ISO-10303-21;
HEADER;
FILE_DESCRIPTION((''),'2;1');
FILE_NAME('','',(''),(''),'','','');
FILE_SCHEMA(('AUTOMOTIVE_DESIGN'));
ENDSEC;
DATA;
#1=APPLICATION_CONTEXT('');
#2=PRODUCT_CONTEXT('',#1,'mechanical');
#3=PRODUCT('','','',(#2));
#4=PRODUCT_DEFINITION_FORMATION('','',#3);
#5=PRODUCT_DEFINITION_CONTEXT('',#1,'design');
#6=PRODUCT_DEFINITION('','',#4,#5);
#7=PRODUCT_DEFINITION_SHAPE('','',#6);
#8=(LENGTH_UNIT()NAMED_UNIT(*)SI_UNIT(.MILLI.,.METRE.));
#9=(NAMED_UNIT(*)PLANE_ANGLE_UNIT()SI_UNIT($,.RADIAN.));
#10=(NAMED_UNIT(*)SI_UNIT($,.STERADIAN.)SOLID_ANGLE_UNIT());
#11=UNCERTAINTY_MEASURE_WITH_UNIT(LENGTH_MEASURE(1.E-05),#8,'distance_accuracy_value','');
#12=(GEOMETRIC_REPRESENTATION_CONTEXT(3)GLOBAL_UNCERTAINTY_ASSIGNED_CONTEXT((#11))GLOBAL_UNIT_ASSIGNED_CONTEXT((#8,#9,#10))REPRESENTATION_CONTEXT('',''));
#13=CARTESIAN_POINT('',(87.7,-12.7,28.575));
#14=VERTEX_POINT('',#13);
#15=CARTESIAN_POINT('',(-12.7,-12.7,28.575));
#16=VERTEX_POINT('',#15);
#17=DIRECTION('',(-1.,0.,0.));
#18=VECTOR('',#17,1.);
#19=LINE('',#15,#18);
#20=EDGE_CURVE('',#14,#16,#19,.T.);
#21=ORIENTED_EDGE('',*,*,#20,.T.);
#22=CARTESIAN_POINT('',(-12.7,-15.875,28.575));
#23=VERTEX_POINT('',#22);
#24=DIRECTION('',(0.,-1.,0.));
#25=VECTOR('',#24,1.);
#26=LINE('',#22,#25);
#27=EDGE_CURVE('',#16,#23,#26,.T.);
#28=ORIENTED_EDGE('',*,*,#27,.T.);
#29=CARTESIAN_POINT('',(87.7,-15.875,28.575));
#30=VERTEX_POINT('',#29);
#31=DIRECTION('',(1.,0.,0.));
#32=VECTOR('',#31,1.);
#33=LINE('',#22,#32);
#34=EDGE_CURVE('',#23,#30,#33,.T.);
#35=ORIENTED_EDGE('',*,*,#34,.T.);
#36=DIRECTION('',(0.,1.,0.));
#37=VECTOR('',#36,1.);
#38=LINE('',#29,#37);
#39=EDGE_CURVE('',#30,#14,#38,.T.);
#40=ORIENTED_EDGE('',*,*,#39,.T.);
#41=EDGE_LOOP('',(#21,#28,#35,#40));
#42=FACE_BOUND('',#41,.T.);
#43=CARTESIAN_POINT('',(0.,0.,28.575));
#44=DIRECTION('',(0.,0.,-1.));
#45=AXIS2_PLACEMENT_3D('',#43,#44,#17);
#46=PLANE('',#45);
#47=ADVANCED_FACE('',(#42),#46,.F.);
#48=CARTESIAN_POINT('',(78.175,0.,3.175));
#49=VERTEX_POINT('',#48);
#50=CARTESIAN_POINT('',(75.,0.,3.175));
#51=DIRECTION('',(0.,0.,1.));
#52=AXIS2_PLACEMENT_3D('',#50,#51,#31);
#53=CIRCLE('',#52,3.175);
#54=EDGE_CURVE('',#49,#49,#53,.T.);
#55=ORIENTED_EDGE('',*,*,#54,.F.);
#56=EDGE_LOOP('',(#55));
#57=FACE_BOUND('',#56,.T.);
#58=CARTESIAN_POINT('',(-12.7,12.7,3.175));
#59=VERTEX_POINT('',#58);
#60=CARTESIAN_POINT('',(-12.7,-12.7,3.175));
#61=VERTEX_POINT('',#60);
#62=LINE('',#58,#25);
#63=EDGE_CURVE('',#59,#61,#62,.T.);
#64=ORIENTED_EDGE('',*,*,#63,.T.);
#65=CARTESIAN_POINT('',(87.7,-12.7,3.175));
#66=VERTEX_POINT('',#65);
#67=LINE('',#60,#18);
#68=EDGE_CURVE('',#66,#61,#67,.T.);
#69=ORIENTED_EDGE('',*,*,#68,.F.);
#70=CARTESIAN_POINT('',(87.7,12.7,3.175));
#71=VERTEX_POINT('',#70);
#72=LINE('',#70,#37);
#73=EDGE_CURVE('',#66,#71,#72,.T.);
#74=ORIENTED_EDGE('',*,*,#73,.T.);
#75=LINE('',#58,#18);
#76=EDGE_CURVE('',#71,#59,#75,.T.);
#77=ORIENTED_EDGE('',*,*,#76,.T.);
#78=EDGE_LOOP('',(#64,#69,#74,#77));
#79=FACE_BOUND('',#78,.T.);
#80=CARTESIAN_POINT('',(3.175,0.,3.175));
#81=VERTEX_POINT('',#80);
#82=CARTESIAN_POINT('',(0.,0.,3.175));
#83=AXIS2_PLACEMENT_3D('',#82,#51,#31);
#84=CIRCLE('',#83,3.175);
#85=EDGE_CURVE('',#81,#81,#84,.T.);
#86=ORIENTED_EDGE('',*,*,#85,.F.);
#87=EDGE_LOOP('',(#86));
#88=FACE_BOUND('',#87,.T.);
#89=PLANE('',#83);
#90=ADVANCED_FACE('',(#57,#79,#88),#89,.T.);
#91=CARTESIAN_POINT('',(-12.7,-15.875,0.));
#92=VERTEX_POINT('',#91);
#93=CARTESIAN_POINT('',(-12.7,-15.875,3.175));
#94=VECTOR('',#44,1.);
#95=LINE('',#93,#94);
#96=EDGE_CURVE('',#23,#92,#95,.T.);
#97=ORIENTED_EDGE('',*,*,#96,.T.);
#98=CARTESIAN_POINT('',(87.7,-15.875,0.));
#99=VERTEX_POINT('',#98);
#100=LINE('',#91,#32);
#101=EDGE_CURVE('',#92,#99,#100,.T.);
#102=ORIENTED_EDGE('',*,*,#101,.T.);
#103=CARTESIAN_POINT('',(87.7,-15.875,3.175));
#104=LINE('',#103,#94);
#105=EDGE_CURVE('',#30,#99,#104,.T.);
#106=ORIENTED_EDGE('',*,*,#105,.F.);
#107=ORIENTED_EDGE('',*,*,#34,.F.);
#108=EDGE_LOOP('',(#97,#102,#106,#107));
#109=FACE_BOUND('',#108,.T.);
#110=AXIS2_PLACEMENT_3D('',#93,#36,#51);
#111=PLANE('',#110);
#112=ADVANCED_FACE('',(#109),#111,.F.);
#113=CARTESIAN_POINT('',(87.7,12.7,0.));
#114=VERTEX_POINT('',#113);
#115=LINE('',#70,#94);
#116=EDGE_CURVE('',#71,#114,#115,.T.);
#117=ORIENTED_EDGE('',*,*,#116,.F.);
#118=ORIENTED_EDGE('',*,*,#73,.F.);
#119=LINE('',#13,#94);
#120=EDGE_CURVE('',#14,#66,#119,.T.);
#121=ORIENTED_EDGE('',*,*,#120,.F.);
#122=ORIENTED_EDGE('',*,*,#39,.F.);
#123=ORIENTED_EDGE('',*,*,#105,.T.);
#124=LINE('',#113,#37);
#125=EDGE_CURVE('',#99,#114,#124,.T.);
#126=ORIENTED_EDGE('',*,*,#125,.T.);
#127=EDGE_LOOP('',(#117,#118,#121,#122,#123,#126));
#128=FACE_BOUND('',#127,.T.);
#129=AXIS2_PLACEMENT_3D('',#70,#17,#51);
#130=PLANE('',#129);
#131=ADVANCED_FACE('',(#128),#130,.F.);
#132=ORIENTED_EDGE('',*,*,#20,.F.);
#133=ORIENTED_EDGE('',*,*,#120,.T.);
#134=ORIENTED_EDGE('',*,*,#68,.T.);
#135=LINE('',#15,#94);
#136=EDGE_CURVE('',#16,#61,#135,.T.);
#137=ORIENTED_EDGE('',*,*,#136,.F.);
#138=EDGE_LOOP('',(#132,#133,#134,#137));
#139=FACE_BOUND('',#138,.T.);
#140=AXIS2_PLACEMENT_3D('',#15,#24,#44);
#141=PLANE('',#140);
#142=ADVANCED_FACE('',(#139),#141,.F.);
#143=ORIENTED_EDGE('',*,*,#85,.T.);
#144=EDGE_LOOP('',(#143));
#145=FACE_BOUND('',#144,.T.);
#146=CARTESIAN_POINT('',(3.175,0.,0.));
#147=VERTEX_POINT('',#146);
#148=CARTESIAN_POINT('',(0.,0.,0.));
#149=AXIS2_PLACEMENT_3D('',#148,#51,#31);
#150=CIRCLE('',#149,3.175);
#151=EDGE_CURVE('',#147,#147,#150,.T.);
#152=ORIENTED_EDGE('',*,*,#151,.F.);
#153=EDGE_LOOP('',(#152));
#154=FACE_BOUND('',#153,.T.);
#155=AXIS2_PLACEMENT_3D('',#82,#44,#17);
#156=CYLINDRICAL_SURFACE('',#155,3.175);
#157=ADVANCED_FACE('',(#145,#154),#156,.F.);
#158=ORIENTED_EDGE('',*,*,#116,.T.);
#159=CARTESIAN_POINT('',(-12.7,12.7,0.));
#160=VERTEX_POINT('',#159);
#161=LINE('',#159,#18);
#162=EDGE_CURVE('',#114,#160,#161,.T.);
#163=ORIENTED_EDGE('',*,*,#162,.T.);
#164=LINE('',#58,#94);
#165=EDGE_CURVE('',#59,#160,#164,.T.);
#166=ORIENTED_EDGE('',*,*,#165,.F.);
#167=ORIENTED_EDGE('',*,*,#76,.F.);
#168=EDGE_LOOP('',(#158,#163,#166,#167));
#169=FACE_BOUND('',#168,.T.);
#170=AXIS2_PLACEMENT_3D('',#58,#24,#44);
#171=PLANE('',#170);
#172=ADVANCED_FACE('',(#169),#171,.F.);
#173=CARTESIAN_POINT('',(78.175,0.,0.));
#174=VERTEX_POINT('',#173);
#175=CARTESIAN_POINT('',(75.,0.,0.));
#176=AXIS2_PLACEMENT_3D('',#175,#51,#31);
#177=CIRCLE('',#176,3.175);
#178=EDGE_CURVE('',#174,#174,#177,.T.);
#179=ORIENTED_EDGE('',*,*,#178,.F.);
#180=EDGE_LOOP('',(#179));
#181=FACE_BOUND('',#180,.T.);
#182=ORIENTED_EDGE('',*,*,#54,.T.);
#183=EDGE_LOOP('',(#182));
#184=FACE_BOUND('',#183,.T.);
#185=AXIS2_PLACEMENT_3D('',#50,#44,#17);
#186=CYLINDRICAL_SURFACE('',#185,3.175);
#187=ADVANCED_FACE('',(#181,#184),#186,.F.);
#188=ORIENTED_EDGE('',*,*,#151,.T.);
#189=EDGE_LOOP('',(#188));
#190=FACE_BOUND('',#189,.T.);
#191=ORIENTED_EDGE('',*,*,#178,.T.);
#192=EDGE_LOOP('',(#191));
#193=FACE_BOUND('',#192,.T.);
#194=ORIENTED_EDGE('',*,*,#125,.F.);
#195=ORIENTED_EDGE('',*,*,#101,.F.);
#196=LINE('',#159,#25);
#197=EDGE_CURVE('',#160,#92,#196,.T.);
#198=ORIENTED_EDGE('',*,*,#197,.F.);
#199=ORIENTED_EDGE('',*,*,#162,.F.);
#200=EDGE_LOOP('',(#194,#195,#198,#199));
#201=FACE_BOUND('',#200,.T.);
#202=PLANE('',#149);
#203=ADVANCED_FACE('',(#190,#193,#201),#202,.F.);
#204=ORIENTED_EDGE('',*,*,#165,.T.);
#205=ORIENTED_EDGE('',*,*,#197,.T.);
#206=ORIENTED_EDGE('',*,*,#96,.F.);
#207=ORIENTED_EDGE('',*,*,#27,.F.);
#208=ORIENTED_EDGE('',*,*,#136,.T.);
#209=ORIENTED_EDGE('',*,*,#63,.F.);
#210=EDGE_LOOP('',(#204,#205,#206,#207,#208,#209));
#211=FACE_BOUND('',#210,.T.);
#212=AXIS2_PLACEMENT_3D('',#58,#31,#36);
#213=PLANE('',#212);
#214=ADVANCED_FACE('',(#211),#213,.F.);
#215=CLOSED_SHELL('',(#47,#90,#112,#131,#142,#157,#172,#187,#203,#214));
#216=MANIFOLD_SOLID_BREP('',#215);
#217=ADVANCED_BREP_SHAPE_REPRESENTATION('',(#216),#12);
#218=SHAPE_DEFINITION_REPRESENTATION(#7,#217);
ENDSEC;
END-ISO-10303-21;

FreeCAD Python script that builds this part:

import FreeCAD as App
import Part
import Sketcher
from FreeCAD import Vector
Q = App.Units.Quantity


def add_polygon(sketch, points):
    """Adds a closed chain of lines whose ends are joined by coincident constraints."""
    first, n = sketch.GeometryCount, len(points)
    for a, b in zip(points, points[1:] + points[:1]):
        sketch.addGeometry(Part.LineSegment(App.Vector(*a, 0), App.Vector(*b, 0)), False)
    for i in range(n):
        sketch.addConstraint(Sketcher.Constraint("Coincident", first + i, 2, first + (i + 1) % n, 1))

doc = App.newDocument("Part")
body = doc.addObject("PartDesign::Body", "Body")

sketch1 = body.newObject("Sketcher::SketchObject", "Sketch")
sketch1.AttachmentSupport = (doc.getObject("XY_Plane"), [""])
sketch1.MapMode = "FlatFace"
add_polygon(sketch1, [(-12.7, 12.7), (-12.7, -15.9), (87.7, -15.9), (87.7, 12.7)])
sketch1.addGeometry(Part.Circle(Vector(0, 0, 0), Vector(0, 0, 1), 3.2), False)
sketch1.addGeometry(Part.Circle(Vector(75, 0, 0), Vector(0, 0, 1), 3.2), False)
sketch1.addConstraint(Sketcher.Constraint("Vertical", 0))
sketch1.addConstraint(Sketcher.Constraint("Horizontal", 1))
sketch1.addConstraint(Sketcher.Constraint("Vertical", 2))
sketch1.addConstraint(Sketcher.Constraint("Horizontal", 3))
sketch1.addConstraint(Sketcher.Constraint("Coincident", 4, 3, -1, 1))
sketch1.addConstraint(Sketcher.Constraint("Equal", 4, 5))
sketch1.addConstraint(Sketcher.Constraint("PointOnObject", 5, 3, -1))
sketch1.addConstraint(Sketcher.Constraint("Diameter", 4, Q("0.25 in")))
sketch1.addConstraint(Sketcher.Constraint("DistanceX", 0, 2, -1, 1, Q("0.5 in")))
sketch1.addConstraint(Sketcher.Constraint("DistanceY", -1, 1, 2, 2, Q("0.5 in")))
sketch1.addConstraint(Sketcher.Constraint("DistanceX", 5, 3, 1, 2, Q("0.5 in")))
sketch1.addConstraint(Sketcher.Constraint("DistanceY", 0, 2, 0, 1, Q("1.125 in")))
sketch1.addConstraint(Sketcher.Constraint("DistanceX", 1, 1, 1, 2, Q("100.4 mm")))
pad1 = body.newObject("PartDesign::Pad", "Pad")
pad1.Profile = sketch1
pad1.Length = Q("0.125 in")

sketch2 = body.newObject("Sketcher::SketchObject", "Sketch001")
sketch2.AttachmentSupport = (doc.getObject("XY_Plane"), [""])
sketch2.MapMode = "FlatFace"
sketch2.AttachmentOffset = App.Placement(Vector(0, 0, 0.125 * 25.4), App.Rotation())
add_polygon(sketch2, [(-12.7, -12.7), (-12.7, -15.9), (87.7, -15.9), (87.7, -12.7)])
sketch2.addConstraint(Sketcher.Constraint("Vertical", 0))
sketch2.addConstraint(Sketcher.Constraint("Horizontal", 1))
sketch2.addConstraint(Sketcher.Constraint("Vertical", 2))
sketch2.addConstraint(Sketcher.Constraint("Horizontal", 3))
sketch2.addConstraint(Sketcher.Constraint("DistanceX", 0, 2, -1, 1, Q("0.5 in")))
sketch2.addConstraint(Sketcher.Constraint("DistanceY", 2, 2, -1, 1, Q("0.5 in")))
sketch2.addConstraint(Sketcher.Constraint("DistanceY", 0, 2, 0, 1, Q("0.125 in")))
sketch2.addConstraint(Sketcher.Constraint("DistanceX", 1, 1, 1, 2, Q("100.4 mm")))
pad2 = body.newObject("PartDesign::Pad", "Pad001")
pad2.Profile = sketch2
pad2.Length = Q("1 in")

doc.recompute()
